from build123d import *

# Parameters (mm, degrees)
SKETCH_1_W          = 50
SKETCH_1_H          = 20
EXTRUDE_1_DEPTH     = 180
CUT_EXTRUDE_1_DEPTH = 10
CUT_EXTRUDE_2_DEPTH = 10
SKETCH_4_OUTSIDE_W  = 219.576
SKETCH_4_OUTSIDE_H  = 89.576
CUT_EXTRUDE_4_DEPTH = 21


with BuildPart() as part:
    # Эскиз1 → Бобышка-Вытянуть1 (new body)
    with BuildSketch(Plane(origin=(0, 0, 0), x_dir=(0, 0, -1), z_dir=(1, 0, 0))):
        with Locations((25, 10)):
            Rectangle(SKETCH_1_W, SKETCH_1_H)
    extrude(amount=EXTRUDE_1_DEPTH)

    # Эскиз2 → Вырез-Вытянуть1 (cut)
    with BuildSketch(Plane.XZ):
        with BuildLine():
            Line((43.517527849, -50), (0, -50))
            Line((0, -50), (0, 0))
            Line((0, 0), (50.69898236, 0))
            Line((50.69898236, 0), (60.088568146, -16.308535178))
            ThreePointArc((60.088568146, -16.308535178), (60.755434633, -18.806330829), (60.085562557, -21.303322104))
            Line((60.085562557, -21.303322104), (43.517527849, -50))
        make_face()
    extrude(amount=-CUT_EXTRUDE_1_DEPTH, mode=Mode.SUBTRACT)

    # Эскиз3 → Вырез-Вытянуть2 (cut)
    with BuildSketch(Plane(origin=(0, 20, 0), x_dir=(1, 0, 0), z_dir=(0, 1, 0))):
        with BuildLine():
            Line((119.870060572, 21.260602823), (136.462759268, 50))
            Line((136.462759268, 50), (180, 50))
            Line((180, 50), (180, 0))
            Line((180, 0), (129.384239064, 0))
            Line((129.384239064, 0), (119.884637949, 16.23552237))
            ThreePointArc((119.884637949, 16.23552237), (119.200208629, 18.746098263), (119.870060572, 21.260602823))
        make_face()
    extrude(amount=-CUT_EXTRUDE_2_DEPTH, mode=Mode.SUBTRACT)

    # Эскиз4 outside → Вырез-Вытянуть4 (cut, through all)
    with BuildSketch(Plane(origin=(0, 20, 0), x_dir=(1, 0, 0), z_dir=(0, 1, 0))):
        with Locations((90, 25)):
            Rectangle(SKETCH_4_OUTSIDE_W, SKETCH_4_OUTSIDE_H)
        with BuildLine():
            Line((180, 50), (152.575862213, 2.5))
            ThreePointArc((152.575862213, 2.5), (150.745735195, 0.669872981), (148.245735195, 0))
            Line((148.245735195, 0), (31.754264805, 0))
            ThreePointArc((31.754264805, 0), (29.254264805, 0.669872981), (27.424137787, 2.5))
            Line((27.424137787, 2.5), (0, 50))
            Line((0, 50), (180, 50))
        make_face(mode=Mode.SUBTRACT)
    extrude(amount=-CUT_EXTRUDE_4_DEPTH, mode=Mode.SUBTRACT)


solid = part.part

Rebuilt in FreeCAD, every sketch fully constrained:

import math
import FreeCAD as App
import Part
import Sketcher
Q = App.Units.Quantity


def add_polygon(sketch, points):
    """Adds a closed chain of lines whose ends are joined by coincident constraints."""
    first, n = sketch.GeometryCount, len(points)
    for a, b in zip(points, points[1:] + points[:1]):
        sketch.addGeometry(Part.LineSegment(App.Vector(*a, 0), App.Vector(*b, 0)), False)
    for i in range(n):
        sketch.addConstraint(Sketcher.Constraint("Coincident", first + i, 2, first + (i + 1) % n, 1))

doc = App.newDocument("Part")
body = doc.addObject("PartDesign::Body", "Body")

sketch1 = body.newObject("Sketcher::SketchObject", "Sketch")
sketch1.AttachmentSupport = (doc.getObject("YZ_Plane"), [""])
sketch1.MapMode = "FlatFace"
add_polygon(sketch1, [(20, 0), (0, 0), (0, -50), (20, -50)])
sketch1.addConstraint(Sketcher.Constraint("Horizontal", 0))
sketch1.addConstraint(Sketcher.Constraint("Vertical", 1))
sketch1.addConstraint(Sketcher.Constraint("Horizontal", 2))
sketch1.addConstraint(Sketcher.Constraint("Vertical", 3))
sketch1.addConstraint(Sketcher.Constraint("Coincident", 0, 2, -1, 1))
sketch1.addConstraint(Sketcher.Constraint("DistanceX", 0, 2, 0, 1, Q("20 mm")))
sketch1.addConstraint(Sketcher.Constraint("DistanceY", 1, 2, 1, 1, Q("50 mm")))
pad1 = body.newObject("PartDesign::Pad", "Pad")
pad1.Profile = sketch1
pad1.Length = 180

sketch2 = body.newObject("Sketcher::SketchObject", "Sketch001")
sketch2.AttachmentSupport = (doc.getObject("XZ_Plane"), [""])
sketch2.MapMode = "FlatFace"
sketch2.addGeometry(Part.LineSegment(App.Vector(0, -50, 0), App.Vector(43.5, -50, 0)), False)
sketch2.addGeometry(Part.LineSegment(App.Vector(43.5, -50, 0), App.Vector(60.1, -21.3, 0)), False)
sketch2.addGeometry(Part.ArcOfCircle(Part.Circle(App.Vector(55.8, -18.8, 0), App.Vector(0, 0, 1), 5), math.radians(-30), math.radians(30)), False)
sketch2.addGeometry(Part.LineSegment(App.Vector(60.1, -16.3, 0), App.Vector(50.7, 0, 0)), False)
sketch2.addGeometry(Part.LineSegment(App.Vector(50.7, 0, 0), App.Vector(0, 0, 0)), False)
sketch2.addGeometry(Part.LineSegment(App.Vector(0, 0, 0), App.Vector(0, -50, 0)), False)
sketch2.addConstraint(Sketcher.Constraint("Coincident", 0, 2, 1, 1))
sketch2.addConstraint(Sketcher.Constraint("Tangent", 1, 2, 2, 1))
sketch2.addConstraint(Sketcher.Constraint("Tangent", 2, 2, 3, 1))
sketch2.addConstraint(Sketcher.Constraint("Coincident", 3, 2, 4, 1))
sketch2.addConstraint(Sketcher.Constraint("Coincident", 4, 2, 5, 1))
sketch2.addConstraint(Sketcher.Constraint("Coincident", 5, 2, 0, 1))
sketch2.addConstraint(Sketcher.Constraint("Horizontal", 0))
sketch2.addConstraint(Sketcher.Constraint("Horizontal", 4))
sketch2.addConstraint(Sketcher.Constraint("Vertical", 5))
sketch2.addConstraint(Sketcher.Constraint("Coincident", 4, 2, -1, 1))
sketch2.addConstraint(Sketcher.Constraint("Radius", 2, Q("5 mm")))
sketch2.addConstraint(Sketcher.Constraint("DistanceY", 5, 2, 5, 1, Q("50 mm")))
sketch2.addConstraint(Sketcher.Constraint("Angle", 1, Q("60 deg")))
sketch2.addConstraint(Sketcher.Constraint("Distance", 1, Q("33.136069 mm")))
sketch2.addConstraint(Sketcher.Constraint("DistanceX", 0, 1, 0, 2, Q("43.517528 mm")))
sketch2.addConstraint(Sketcher.Constraint("DistanceX", 4, 2, 4, 1, Q("50.698982 mm")))
pocket1 = body.newObject("PartDesign::Pocket", "Pocket")
pocket1.Profile = sketch2
pocket1.Length = 10

sketch3 = body.newObject("Sketcher::SketchObject", "Sketch002")
sketch3.AttachmentSupport = (doc.getObject("XZ_Plane"), [""])
sketch3.MapMode = "FlatFace"
sketch3.AttachmentOffset = App.Placement(App.Vector(0, 0, -20), App.Rotation())
sketch3.addGeometry(Part.LineSegment(App.Vector(136, -50, 0), App.Vector(120, -21, 0)), False)
sketch3.addGeometry(Part.ArcOfCircle(Part.Circle(App.Vector(124, -19, 0), App.Vector(0, 0, 1), 5), math.radians(150), math.radians(210)), False)
sketch3.addGeometry(Part.LineSegment(App.Vector(120, -16, 0), App.Vector(129, 0, 0)), False)
sketch3.addGeometry(Part.LineSegment(App.Vector(129, 0, 0), App.Vector(180, 0, 0)), False)
sketch3.addGeometry(Part.LineSegment(App.Vector(180, 0, 0), App.Vector(180, -50, 0)), False)
sketch3.addGeometry(Part.LineSegment(App.Vector(180, -50, 0), App.Vector(136, -50, 0)), False)
sketch3.addConstraint(Sketcher.Constraint("Tangent", 0, 2, 1, 2))
sketch3.addConstraint(Sketcher.Constraint("Tangent", 1, 1, 2, 1))
sketch3.addConstraint(Sketcher.Constraint("Coincident", 2, 2, 3, 1))
sketch3.addConstraint(Sketcher.Constraint("Coincident", 3, 2, 4, 1))
sketch3.addConstraint(Sketcher.Constraint("Coincident", 4, 2, 5, 1))
sketch3.addConstraint(Sketcher.Constraint("Coincident", 5, 2, 0, 1))
sketch3.addConstraint(Sketcher.Constraint("Horizontal", 3))
sketch3.addConstraint(Sketcher.Constraint("Vertical", 4))
sketch3.addConstraint(Sketcher.Constraint("Horizontal", 5))
sketch3.addConstraint(Sketcher.Constraint("PointOnObject", 2, 2, -1))
sketch3.addConstraint(Sketcher.Constraint("Radius", 1, Q("5 mm")))
sketch3.addConstraint(Sketcher.Constraint("DistanceY", 4, 2, 4, 1, Q("50 mm")))
sketch3.addConstraint(Sketcher.Constraint("Angle", 0, Q("120 deg")))
sketch3.addConstraint(Sketcher.Constraint("DistanceX", -1, 1, 3, 2, Q("180 mm")))
sketch3.addConstraint(Sketcher.Constraint("DistanceX", 3, 1, 3, 2, Q("50.615761 mm")))
sketch3.addConstraint(Sketcher.Constraint("DistanceX", 5, 2, 5, 1, Q("43.537241 mm")))
sketch3.addConstraint(Sketcher.Constraint("DistanceX", 1, 1, 2, 2, Q("9.499601 mm")))
pocket2 = body.newObject("PartDesign::Pocket", "Pocket001")
pocket2.Profile = sketch3
pocket2.Length = 10
pocket2.Reversed = True

sketch4 = body.newObject("Sketcher::SketchObject", "Sketch003")
sketch4.AttachmentSupport = (doc.getObject("XZ_Plane"), [""])
sketch4.MapMode = "FlatFace"
sketch4.AttachmentOffset = App.Placement(App.Vector(0, 0, -20), App.Rotation())
add_polygon(sketch4, [(-19.8, -69.8), (-19.8, 19.8), (199.8, 19.8), (199.8, -69.8)])
sketch4.addGeometry(Part.LineSegment(App.Vector(0, -50, 0), App.Vector(180, -50, 0)), False)
sketch4.addGeometry(Part.LineSegment(App.Vector(180, -50, 0), App.Vector(152.6, -2.5, 0)), False)
sketch4.addGeometry(Part.ArcOfCircle(Part.Circle(App.Vector(148.2, -5, 0), App.Vector(0, 0, 1), 5), math.radians(30), math.radians(90)), False)
sketch4.addGeometry(Part.LineSegment(App.Vector(148.2, 0, 0), App.Vector(31.8, 0, 0)), False)
sketch4.addGeometry(Part.ArcOfCircle(Part.Circle(App.Vector(31.8, -5, 0), App.Vector(0, 0, 1), 5), math.radians(90), math.radians(150)), False)
sketch4.addGeometry(Part.LineSegment(App.Vector(27.4, -2.5, 0), App.Vector(0, -50, 0)), False)
sketch4.addConstraint(Sketcher.Constraint("Coincident", 4, 2, 5, 1))
sketch4.addConstraint(Sketcher.Constraint("Tangent", 5, 2, 6, 1))
sketch4.addConstraint(Sketcher.Constraint("Tangent", 6, 2, 7, 1))
sketch4.addConstraint(Sketcher.Constraint("Tangent", 7, 2, 8, 1))
sketch4.addConstraint(Sketcher.Constraint("Tangent", 8, 2, 9, 1))
sketch4.addConstraint(Sketcher.Constraint("Coincident", 9, 2, 4, 1))
sketch4.addConstraint(Sketcher.Constraint("Vertical", 0))
sketch4.addConstraint(Sketcher.Constraint("Horizontal", 1))
sketch4.addConstraint(Sketcher.Constraint("Vertical", 2))
sketch4.addConstraint(Sketcher.Constraint("Horizontal", 3))
sketch4.addConstraint(Sketcher.Constraint("Horizontal", 4))
sketch4.addConstraint(Sketcher.Constraint("Horizontal", 7))
sketch4.addConstraint(Sketcher.Constraint("Equal", 6, 8))
sketch4.addConstraint(Sketcher.Constraint("PointOnObject", 6, 2, -1))
sketch4.addConstraint(Sketcher.Constraint("PointOnObject", 9, 2, -2))
sketch4.addConstraint(Sketcher.Constraint("Horizontal", 5, 2, 8, 2))
sketch4.addConstraint(Sketcher.Constraint("Radius", 6, Q("5 mm")))
sketch4.addConstraint(Sketcher.Constraint("DistanceX", 4, 1, 4, 2, Q("180 mm")))
sketch4.addConstraint(Sketcher.Constraint("Angle", 5, Q("120 deg")))
sketch4.addConstraint(Sketcher.Constraint("DistanceY", 4, 2, -1, 1, Q("50 mm")))
sketch4.addConstraint(Sketcher.Constraint("DistanceX", 1, 1, 1, 2, Q("219.576 mm")))
sketch4.addConstraint(Sketcher.Constraint("DistanceY", 0, 1, 0, 2, Q("89.576 mm")))
sketch4.addConstraint(Sketcher.Constraint("DistanceX", 0, 2, -1, 1, Q("19.788 mm")))
sketch4.addConstraint(Sketcher.Constraint("DistanceY", -1, 1, 0, 2, Q("19.788 mm")))
pocket3 = body.newObject("PartDesign::Pocket", "Pocket002")
pocket3.Profile = sketch4
pocket3.Type = "ThroughAll"
pocket3.Reversed = True

doc.recompute()
